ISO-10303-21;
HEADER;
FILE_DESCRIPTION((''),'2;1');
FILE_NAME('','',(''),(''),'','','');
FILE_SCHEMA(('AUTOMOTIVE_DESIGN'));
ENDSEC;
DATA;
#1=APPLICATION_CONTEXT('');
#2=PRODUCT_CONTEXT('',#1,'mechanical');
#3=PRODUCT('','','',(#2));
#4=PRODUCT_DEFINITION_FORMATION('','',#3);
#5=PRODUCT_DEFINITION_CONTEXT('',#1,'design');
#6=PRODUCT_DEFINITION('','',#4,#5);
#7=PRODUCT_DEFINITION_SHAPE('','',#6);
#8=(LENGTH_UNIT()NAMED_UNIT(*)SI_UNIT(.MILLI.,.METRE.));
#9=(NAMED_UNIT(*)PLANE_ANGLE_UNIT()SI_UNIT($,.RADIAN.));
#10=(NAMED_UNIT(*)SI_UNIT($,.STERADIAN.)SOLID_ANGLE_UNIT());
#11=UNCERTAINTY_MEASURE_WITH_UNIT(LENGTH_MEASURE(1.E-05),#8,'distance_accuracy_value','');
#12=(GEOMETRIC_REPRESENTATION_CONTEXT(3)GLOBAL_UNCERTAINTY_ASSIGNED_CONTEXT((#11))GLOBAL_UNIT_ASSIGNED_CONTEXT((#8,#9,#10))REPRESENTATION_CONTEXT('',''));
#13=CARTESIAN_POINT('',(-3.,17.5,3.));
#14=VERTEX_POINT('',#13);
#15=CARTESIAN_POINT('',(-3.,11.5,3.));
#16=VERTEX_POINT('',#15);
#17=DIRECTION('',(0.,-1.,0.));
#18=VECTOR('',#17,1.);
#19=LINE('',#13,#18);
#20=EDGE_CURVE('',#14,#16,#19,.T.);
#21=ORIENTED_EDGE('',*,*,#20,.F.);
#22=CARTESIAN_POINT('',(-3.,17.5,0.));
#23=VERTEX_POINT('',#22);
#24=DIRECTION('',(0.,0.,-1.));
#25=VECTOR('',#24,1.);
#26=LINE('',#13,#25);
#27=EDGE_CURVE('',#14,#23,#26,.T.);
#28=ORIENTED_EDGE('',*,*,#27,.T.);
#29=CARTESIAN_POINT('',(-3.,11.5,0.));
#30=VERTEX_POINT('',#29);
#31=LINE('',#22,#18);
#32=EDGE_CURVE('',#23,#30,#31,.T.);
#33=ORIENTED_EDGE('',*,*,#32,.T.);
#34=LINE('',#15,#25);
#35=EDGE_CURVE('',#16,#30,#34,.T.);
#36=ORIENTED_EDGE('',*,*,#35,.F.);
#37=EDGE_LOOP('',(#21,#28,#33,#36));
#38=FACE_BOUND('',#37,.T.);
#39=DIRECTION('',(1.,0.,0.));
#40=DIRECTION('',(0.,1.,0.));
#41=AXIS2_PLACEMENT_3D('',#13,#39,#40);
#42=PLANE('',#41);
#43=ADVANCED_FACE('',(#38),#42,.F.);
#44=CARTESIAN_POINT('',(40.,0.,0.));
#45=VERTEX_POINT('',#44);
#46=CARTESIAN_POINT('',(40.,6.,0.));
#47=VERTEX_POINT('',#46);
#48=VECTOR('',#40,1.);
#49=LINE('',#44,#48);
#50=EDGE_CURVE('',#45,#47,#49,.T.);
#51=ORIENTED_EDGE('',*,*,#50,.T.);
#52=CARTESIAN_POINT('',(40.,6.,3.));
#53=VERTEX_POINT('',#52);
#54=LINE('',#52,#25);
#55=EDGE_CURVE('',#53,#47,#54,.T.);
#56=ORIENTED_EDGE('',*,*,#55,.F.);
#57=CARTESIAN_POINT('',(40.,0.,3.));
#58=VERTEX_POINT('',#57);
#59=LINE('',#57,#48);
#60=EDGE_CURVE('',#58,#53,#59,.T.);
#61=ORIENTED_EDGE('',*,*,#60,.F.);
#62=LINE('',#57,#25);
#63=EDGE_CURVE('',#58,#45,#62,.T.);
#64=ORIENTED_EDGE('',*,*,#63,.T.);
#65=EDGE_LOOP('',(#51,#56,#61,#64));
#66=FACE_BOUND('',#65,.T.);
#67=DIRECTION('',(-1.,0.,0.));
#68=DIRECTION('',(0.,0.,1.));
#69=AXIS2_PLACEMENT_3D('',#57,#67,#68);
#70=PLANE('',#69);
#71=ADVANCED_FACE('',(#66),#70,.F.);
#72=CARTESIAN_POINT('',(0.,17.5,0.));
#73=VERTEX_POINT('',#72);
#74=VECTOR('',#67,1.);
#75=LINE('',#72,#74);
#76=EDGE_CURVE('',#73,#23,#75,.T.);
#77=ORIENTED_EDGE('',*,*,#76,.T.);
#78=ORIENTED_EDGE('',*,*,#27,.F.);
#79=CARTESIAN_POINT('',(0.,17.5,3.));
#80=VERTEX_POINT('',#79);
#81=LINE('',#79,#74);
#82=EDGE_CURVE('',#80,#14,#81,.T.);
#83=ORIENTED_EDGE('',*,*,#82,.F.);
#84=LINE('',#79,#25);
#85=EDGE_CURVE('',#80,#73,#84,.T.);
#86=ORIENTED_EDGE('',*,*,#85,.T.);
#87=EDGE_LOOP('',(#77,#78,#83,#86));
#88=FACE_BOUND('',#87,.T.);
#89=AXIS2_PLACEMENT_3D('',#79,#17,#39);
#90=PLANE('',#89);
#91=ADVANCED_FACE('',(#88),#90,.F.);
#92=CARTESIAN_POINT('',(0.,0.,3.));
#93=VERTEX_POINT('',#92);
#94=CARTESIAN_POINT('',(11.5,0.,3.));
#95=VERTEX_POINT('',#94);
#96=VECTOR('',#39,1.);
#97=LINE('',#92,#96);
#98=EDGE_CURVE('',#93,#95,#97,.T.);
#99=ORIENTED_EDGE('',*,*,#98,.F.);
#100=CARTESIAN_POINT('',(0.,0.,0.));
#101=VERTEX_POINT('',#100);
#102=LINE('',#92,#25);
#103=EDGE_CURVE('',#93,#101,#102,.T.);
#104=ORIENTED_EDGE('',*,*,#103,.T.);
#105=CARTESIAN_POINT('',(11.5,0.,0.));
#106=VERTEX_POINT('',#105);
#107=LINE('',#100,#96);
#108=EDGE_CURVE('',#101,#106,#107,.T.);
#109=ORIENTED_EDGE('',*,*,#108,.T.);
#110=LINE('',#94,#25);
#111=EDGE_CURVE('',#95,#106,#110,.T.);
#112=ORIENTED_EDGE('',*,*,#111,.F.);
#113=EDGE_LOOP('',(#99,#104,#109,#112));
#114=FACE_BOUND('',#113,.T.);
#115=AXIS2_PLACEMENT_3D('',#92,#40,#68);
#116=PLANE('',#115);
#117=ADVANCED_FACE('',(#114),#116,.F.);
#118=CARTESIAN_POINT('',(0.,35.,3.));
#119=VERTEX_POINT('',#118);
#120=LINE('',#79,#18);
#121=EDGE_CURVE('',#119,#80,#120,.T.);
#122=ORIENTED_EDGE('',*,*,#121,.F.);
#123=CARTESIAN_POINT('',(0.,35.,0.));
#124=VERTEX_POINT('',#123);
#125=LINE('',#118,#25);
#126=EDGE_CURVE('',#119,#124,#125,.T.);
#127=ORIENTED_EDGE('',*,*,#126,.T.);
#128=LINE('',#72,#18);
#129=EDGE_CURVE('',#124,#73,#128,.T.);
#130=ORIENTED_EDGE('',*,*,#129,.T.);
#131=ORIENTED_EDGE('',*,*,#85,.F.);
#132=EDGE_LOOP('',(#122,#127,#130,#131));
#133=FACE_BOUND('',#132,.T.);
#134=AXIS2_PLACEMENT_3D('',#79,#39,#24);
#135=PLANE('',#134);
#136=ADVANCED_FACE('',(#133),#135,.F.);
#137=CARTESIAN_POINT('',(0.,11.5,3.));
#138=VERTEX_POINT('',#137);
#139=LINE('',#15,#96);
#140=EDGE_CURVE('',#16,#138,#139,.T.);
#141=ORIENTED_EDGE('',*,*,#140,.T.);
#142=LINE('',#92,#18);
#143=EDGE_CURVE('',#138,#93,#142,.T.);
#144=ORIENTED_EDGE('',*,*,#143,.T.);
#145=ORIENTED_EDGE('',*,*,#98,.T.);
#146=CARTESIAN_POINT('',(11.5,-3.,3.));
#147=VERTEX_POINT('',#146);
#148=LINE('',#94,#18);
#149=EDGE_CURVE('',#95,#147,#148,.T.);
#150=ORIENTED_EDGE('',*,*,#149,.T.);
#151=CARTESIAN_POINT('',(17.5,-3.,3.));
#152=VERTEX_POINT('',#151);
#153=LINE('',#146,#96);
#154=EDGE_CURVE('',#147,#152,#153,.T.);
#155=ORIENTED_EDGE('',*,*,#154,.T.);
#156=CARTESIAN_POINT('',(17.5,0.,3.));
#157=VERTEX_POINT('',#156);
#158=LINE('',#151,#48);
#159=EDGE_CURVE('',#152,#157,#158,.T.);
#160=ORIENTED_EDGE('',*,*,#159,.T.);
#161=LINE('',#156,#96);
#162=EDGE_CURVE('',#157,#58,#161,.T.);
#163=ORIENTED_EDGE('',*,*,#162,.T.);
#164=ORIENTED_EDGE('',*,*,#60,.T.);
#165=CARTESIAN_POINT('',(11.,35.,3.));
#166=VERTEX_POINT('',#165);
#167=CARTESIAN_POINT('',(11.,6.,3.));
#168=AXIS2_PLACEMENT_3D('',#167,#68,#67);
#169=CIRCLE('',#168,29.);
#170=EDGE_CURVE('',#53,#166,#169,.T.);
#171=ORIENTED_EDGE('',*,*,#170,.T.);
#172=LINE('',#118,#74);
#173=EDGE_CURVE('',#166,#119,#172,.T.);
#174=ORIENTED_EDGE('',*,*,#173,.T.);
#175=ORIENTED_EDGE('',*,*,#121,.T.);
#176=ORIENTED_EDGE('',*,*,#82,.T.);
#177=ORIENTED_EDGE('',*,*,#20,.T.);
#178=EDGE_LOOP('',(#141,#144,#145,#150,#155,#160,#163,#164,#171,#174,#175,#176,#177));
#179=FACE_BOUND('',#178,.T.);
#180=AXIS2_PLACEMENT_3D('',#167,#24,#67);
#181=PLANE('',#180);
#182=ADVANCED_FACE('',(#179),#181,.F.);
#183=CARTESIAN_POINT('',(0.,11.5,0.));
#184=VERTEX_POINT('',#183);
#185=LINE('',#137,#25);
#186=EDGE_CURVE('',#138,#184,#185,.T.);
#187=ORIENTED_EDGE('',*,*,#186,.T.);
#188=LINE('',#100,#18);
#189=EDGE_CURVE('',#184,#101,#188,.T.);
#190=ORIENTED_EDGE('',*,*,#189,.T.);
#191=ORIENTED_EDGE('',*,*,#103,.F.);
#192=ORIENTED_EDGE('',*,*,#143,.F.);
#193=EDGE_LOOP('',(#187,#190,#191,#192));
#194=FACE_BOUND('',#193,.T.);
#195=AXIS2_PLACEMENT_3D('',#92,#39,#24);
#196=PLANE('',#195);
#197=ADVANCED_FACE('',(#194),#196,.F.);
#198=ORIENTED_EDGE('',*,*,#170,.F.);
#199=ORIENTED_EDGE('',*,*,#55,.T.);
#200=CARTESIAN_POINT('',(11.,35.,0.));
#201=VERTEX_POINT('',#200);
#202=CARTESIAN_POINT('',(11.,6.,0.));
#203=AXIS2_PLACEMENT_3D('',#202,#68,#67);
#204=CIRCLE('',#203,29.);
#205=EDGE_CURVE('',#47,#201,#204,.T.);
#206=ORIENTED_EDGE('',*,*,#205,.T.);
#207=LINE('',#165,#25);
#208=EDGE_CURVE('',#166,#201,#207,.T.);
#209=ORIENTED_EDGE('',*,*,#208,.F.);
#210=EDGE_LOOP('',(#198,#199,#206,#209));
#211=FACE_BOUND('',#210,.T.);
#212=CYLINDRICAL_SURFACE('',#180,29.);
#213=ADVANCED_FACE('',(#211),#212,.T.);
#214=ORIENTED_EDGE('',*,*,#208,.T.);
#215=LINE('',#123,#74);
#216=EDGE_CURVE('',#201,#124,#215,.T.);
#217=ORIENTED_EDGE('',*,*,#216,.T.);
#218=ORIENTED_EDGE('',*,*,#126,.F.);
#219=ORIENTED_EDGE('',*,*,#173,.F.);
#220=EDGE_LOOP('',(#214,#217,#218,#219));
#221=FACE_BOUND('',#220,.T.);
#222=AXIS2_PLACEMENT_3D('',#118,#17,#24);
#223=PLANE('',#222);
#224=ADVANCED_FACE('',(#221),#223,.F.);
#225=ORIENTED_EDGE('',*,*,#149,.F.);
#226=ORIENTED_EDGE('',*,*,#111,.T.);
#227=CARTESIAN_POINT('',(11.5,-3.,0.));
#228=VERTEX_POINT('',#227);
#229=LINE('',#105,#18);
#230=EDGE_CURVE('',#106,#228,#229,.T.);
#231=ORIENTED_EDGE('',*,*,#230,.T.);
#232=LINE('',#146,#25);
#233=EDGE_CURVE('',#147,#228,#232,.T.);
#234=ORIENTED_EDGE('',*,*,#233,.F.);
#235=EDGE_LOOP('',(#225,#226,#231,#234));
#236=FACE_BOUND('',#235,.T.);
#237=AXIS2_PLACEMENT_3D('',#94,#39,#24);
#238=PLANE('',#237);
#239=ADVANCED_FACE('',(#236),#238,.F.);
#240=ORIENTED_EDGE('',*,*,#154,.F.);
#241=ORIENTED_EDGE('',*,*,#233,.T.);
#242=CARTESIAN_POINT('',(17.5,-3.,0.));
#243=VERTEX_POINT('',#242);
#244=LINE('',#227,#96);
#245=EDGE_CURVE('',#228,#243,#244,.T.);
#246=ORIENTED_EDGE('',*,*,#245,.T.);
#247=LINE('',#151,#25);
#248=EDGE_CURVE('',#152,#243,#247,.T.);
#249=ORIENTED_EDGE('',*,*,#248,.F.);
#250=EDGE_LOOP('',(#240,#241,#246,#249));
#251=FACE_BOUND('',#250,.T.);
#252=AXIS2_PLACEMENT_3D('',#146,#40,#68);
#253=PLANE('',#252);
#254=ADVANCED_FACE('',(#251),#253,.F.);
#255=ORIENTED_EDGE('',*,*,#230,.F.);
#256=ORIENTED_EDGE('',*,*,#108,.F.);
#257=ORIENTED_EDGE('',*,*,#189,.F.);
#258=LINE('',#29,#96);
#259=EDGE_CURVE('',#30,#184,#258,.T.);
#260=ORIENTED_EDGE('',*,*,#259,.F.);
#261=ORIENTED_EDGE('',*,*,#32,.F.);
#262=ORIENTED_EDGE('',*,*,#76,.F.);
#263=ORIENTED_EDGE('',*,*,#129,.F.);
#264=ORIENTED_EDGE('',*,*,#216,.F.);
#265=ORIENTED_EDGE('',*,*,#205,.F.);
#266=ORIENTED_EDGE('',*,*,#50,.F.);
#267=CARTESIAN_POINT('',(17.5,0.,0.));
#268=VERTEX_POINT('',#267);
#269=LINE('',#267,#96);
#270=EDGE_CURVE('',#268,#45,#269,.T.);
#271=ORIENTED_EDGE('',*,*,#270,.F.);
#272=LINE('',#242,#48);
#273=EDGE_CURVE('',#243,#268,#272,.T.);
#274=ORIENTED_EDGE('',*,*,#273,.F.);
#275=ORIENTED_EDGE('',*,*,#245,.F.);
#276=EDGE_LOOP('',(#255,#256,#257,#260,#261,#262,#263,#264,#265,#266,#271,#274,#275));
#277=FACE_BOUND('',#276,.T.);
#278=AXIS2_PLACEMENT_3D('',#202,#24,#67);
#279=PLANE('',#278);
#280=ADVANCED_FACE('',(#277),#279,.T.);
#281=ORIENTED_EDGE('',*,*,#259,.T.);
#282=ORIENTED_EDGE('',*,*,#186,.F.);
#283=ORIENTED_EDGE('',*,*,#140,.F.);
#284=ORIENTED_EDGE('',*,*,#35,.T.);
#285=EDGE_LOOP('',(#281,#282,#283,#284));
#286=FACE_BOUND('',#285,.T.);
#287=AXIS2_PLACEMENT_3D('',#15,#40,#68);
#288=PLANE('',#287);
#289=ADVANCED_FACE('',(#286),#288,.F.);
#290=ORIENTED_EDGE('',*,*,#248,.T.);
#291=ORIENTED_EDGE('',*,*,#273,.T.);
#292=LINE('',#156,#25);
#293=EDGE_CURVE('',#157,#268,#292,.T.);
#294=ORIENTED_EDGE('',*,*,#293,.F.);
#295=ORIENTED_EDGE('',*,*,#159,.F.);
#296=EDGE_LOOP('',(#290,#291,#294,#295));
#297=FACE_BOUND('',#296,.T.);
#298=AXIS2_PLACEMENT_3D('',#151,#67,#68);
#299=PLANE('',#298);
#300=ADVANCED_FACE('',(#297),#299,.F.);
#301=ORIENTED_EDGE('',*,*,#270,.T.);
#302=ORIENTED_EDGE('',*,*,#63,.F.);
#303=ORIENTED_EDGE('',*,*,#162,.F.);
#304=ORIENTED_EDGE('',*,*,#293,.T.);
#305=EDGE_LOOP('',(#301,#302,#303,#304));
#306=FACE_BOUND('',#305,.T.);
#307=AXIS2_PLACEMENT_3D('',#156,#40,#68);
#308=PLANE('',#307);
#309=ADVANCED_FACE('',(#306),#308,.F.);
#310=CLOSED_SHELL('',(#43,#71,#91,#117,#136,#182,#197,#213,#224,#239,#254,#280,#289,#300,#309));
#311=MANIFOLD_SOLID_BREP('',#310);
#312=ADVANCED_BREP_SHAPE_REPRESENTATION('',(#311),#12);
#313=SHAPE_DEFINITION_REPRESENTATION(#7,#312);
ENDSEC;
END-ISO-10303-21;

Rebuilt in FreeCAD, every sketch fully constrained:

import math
import FreeCAD as App
import Part
import Sketcher
from FreeCAD import Vector
Q = App.Units.Quantity

doc = App.newDocument("Part")
body = doc.addObject("PartDesign::Body", "Body")

sketch1 = body.newObject("Sketcher::SketchObject", "Sketch")
sketch1.AttachmentSupport = (doc.getObject("XY_Plane"), [""])
sketch1.MapMode = "FlatFace"
sketch1.addGeometry(Part.LineSegment(Vector(0, 17.5, 0), Vector(-3, 17.5, 0)), False)
sketch1.addGeometry(Part.LineSegment(Vector(-3, 17.5, 0), Vector(-3, 11.5, 0)), False)
sketch1.addGeometry(Part.LineSegment(Vector(-3, 11.5, 0), Vector(0, 11.5, 0)), False)
sketch1.addGeometry(Part.LineSegment(Vector(0, 11.5, 0), Vector(0, 0, 0)), False)
sketch1.addGeometry(Part.LineSegment(Vector(0, 0, 0), Vector(11.5, 0, 0)), False)
sketch1.addGeometry(Part.LineSegment(Vector(11.5, 0, 0), Vector(11.5, -3, 0)), False)
sketch1.addGeometry(Part.LineSegment(Vector(11.5, -3, 0), Vector(17.5, -3, 0)), False)
sketch1.addGeometry(Part.LineSegment(Vector(17.5, -3, 0), Vector(17.5, 0, 0)), False)
sketch1.addGeometry(Part.LineSegment(Vector(17.5, 0, 0), Vector(40, 0, 0)), False)
sketch1.addGeometry(Part.LineSegment(Vector(40, 0, 0), Vector(40, 6, 0)), False)
sketch1.addGeometry(Part.ArcOfCircle(Part.Circle(Vector(11, 6, 0), Vector(0, 0, 1), 29), math.radians(0), math.radians(90)), False)
sketch1.addGeometry(Part.LineSegment(Vector(11, 35, 0), Vector(0, 35, 0)), False)
sketch1.addGeometry(Part.LineSegment(Vector(0, 35, 0), Vector(0, 17.5, 0)), False)
sketch1.addConstraint(Sketcher.Constraint("Coincident", 0, 2, 1, 1))
sketch1.addConstraint(Sketcher.Constraint("Coincident", 1, 2, 2, 1))
sketch1.addConstraint(Sketcher.Constraint("Coincident", 2, 2, 3, 1))
sketch1.addConstraint(Sketcher.Constraint("Coincident", 3, 2, 4, 1))
sketch1.addConstraint(Sketcher.Constraint("Coincident", 4, 2, 5, 1))
sketch1.addConstraint(Sketcher.Constraint("Coincident", 5, 2, 6, 1))
sketch1.addConstraint(Sketcher.Constraint("Coincident", 6, 2, 7, 1))
sketch1.addConstraint(Sketcher.Constraint("Coincident", 7, 2, 8, 1))
sketch1.addConstraint(Sketcher.Constraint("Coincident", 8, 2, 9, 1))
sketch1.addConstraint(Sketcher.Constraint("Tangent", 9, 2, 10, 1))
sketch1.addConstraint(Sketcher.Constraint("Tangent", 10, 2, 11, 1))
sketch1.addConstraint(Sketcher.Constraint("Coincident", 11, 2, 12, 1))
sketch1.addConstraint(Sketcher.Constraint("Coincident", 12, 2, 0, 1))
sketch1.addConstraint(Sketcher.Constraint("Horizontal", 0))
sketch1.addConstraint(Sketcher.Constraint("Vertical", 1))
sketch1.addConstraint(Sketcher.Constraint("Horizontal", 2))
sketch1.addConstraint(Sketcher.Constraint("Vertical", 3))
sketch1.addConstraint(Sketcher.Constraint("Horizontal", 4))
sketch1.addConstraint(Sketcher.Constraint("Vertical", 5))
sketch1.addConstraint(Sketcher.Constraint("Horizontal", 6))
sketch1.addConstraint(Sketcher.Constraint("Vertical", 7))
sketch1.addConstraint(Sketcher.Constraint("Horizontal", 8))
sketch1.addConstraint(Sketcher.Constraint("Vertical", 9))
sketch1.addConstraint(Sketcher.Constraint("Horizontal", 11))
sketch1.addConstraint(Sketcher.Constraint("Vertical", 12))
sketch1.addConstraint(Sketcher.Constraint("Coincident", 3, 2, -1, 1))
sketch1.addConstraint(Sketcher.Constraint("PointOnObject", 7, 2, -1))
sketch1.addConstraint(Sketcher.Constraint("PointOnObject", 11, 2, -2))
sketch1.addConstraint(Sketcher.Constraint("Equal", 6, 1))
sketch1.addConstraint(Sketcher.Constraint("Equal", 4, 3))
sketch1.addConstraint(Sketcher.Constraint("Equal", 2, 5))
sketch1.addConstraint(Sketcher.Constraint("Equal", 1, 9))
sketch1.addConstraint(Sketcher.Constraint("Radius", 10, Q("29 mm")))
sketch1.addConstraint(Sketcher.Constraint("DistanceX", 0, 2, 0, 1, Q("3 mm")))
sketch1.addConstraint(Sketcher.Constraint("DistanceX", 6, 1, 6, 2, Q("6 mm")))
sketch1.addConstraint(Sketcher.Constraint("DistanceX", 11, 2, 11, 1, Q("11 mm")))
sketch1.addConstraint(Sketcher.Constraint("DistanceX", 4, 1, 4, 2, Q("11.5 mm")))
pad1 = body.newObject("PartDesign::Pad", "Pad")
pad1.Profile = sketch1
pad1.Length = 3

doc.recompute()
